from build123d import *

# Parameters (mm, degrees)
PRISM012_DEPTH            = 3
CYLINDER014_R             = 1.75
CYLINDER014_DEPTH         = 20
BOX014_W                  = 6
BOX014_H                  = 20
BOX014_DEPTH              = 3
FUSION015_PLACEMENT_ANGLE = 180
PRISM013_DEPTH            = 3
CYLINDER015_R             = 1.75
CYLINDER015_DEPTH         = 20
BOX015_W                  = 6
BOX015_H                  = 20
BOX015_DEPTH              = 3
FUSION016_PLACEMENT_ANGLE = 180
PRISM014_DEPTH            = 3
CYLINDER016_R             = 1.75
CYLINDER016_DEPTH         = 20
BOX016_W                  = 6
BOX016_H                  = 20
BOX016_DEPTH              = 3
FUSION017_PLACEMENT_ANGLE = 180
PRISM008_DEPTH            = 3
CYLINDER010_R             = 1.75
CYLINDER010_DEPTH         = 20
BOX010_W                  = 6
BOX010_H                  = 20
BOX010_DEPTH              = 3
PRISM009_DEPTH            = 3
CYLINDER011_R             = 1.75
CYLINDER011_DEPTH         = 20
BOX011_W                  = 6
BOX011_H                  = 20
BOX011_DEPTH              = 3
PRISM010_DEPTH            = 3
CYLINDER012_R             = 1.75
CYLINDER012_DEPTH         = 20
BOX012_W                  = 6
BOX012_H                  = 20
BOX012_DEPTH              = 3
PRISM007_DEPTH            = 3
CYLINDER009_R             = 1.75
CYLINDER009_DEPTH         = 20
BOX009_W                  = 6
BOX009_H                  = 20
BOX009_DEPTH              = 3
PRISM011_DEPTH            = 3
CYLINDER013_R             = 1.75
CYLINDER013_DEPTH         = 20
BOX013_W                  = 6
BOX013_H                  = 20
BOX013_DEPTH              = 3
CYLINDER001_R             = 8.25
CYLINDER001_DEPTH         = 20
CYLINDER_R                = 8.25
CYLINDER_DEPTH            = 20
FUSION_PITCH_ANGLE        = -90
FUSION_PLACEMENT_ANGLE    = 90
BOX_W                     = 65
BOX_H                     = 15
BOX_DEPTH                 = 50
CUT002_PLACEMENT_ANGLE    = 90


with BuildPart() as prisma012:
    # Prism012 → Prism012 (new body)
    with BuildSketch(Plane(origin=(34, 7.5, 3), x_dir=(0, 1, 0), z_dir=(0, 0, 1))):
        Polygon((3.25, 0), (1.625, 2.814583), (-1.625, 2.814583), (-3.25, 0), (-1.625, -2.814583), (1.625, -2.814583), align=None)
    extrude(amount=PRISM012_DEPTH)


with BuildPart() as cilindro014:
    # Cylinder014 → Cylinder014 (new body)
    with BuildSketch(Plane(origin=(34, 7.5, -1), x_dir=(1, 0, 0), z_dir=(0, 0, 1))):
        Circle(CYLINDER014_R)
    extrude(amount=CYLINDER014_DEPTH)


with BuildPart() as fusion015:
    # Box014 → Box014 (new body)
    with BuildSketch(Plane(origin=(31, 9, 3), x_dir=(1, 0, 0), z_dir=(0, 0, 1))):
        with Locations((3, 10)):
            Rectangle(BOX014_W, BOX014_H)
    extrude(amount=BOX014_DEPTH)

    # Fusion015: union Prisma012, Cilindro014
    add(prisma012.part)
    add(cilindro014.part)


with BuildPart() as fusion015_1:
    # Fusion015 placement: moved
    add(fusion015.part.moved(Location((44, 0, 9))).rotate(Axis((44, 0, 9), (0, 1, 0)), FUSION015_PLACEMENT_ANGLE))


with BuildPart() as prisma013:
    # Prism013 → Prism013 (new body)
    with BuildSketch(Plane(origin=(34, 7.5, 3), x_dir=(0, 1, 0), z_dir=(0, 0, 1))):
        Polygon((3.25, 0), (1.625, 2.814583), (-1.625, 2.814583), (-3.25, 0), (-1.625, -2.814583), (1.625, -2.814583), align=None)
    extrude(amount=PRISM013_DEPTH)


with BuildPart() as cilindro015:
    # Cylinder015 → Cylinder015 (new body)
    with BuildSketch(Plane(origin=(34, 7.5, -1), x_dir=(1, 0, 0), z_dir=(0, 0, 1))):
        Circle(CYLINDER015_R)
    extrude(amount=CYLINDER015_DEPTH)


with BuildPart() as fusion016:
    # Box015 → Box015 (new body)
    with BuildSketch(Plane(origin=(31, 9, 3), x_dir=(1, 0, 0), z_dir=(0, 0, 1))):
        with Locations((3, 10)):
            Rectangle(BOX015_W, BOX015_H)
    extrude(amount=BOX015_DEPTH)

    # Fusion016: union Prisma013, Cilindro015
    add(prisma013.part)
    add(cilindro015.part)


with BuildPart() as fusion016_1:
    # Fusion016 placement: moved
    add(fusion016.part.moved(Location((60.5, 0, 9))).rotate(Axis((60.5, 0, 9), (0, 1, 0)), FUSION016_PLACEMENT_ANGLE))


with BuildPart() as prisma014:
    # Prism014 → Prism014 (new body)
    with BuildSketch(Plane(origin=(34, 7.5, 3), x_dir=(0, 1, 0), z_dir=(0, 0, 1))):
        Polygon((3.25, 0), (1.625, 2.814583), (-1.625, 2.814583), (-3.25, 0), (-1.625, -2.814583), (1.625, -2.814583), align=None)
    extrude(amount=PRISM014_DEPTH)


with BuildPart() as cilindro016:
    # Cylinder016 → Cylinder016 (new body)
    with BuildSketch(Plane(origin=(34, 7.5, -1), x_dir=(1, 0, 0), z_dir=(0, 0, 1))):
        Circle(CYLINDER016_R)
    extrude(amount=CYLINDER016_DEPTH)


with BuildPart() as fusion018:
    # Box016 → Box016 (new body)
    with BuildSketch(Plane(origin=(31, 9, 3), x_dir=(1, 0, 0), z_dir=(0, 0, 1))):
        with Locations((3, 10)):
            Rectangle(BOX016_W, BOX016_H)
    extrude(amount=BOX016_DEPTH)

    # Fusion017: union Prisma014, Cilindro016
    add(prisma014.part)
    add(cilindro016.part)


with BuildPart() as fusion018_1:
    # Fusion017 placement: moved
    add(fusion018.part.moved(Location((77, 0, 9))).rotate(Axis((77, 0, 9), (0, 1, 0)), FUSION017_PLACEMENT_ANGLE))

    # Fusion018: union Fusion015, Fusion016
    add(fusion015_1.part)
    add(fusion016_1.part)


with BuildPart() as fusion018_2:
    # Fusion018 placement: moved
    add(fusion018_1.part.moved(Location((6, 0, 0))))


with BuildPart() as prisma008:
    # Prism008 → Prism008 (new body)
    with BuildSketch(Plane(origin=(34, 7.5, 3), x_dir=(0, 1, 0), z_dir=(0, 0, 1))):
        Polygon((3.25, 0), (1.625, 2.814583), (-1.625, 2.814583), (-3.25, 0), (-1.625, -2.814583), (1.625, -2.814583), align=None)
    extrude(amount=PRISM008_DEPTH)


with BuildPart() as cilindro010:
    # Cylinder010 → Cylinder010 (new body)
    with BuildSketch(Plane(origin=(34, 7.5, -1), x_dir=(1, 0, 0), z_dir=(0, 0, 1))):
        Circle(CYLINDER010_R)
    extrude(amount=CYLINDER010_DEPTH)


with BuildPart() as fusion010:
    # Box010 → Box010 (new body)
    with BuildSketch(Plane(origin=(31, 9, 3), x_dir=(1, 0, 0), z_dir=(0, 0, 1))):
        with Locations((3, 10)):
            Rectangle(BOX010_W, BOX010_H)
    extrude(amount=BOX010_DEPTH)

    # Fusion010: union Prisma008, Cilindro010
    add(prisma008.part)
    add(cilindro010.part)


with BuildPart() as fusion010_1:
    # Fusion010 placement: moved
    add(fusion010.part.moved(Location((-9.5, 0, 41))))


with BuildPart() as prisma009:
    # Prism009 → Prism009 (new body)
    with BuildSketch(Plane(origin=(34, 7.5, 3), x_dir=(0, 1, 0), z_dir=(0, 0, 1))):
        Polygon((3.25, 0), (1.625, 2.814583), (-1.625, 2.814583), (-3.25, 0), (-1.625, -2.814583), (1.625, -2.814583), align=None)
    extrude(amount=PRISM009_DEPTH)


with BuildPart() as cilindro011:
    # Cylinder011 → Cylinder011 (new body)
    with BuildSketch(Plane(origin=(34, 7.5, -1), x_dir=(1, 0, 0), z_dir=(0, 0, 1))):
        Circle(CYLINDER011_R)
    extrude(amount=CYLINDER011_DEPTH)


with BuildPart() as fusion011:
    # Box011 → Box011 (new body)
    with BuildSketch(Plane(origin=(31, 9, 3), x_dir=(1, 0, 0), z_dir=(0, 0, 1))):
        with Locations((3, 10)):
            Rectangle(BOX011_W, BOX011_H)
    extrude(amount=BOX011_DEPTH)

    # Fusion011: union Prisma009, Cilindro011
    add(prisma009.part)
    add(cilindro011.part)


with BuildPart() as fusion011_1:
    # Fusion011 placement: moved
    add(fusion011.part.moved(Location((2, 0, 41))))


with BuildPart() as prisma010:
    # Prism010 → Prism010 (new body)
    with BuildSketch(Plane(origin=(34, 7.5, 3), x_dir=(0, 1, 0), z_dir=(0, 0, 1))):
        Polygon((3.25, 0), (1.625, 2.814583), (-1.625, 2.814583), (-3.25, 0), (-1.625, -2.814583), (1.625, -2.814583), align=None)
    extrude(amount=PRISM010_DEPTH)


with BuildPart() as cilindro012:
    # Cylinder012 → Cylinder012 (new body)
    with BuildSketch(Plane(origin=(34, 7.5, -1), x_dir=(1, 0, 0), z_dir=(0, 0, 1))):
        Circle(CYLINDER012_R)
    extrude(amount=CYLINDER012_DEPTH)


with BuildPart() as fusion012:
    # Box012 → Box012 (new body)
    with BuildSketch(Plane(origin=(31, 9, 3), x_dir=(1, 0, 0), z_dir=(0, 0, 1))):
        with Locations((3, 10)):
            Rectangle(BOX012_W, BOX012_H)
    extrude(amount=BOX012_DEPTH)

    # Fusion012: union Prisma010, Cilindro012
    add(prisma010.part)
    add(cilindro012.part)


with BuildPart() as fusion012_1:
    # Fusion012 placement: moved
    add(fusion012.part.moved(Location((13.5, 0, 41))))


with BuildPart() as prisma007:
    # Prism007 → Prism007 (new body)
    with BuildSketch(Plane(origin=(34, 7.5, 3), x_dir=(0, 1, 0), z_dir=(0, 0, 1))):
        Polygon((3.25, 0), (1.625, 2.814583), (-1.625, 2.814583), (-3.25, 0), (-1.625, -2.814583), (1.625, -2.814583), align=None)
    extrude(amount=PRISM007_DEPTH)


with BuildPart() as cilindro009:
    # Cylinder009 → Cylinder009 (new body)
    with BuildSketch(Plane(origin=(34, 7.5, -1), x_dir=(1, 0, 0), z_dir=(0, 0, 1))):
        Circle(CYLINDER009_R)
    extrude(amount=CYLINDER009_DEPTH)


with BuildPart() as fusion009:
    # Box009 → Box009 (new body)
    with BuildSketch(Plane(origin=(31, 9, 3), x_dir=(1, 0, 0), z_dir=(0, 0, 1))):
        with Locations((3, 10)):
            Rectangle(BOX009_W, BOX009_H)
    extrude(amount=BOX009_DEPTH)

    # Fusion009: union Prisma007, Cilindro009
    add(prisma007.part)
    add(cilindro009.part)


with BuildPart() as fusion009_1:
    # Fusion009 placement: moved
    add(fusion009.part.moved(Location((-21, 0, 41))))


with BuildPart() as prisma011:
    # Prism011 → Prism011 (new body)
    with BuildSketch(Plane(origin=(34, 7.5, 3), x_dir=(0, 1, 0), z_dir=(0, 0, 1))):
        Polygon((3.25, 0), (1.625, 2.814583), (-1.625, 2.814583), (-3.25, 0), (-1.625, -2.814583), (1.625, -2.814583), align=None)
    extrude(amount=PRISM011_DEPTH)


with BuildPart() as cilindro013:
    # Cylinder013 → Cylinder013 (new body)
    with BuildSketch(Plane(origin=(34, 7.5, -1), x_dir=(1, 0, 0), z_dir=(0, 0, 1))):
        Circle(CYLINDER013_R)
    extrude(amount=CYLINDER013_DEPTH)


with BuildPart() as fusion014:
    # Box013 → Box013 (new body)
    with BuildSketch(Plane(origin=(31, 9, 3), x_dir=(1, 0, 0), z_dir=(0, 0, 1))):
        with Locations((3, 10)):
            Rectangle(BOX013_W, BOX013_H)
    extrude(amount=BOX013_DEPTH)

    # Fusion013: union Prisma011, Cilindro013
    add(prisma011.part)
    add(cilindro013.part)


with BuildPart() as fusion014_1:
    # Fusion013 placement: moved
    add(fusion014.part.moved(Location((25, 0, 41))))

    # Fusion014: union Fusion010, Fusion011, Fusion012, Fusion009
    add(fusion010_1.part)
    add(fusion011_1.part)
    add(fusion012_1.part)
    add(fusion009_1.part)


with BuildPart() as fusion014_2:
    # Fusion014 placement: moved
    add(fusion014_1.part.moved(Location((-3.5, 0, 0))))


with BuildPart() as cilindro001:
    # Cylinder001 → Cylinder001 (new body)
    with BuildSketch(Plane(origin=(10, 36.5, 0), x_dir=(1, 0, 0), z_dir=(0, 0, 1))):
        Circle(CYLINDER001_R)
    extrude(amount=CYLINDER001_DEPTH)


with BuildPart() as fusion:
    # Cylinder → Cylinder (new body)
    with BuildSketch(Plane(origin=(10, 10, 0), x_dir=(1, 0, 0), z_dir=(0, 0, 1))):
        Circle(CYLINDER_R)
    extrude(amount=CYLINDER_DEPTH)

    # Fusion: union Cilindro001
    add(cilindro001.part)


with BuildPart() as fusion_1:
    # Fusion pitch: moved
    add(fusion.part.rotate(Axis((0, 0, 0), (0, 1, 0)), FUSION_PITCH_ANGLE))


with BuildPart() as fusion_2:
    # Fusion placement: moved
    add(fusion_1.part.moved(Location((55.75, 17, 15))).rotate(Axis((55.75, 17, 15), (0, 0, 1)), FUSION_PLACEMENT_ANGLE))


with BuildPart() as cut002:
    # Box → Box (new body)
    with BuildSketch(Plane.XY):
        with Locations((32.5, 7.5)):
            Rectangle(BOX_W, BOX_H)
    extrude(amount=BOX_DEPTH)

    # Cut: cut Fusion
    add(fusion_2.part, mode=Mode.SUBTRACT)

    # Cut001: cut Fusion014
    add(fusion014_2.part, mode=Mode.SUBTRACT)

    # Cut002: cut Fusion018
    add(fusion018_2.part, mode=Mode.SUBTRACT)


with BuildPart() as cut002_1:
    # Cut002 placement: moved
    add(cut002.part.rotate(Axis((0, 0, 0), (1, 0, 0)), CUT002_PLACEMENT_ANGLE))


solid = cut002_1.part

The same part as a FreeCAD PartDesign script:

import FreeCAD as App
import Part
import Sketcher

V = App.Vector
Q = App.Units.Quantity


def add_polygon(sketch, points):
    """Adds a closed chain of lines whose ends are joined by coincident constraints."""
    first, n = sketch.GeometryCount, len(points)
    for a, b in zip(points, points[1:] + points[:1]):
        sketch.addGeometry(Part.LineSegment(App.Vector(*a, 0), App.Vector(*b, 0)), False)
    for i in range(n):
        sketch.addConstraint(Sketcher.Constraint("Coincident", first + i, 2, first + (i + 1) % n, 1))

doc = App.newDocument("Part")
body = doc.addObject("PartDesign::Body", "Body")

sketch1 = body.newObject("Sketcher::SketchObject", "Sketch")
sketch1.AttachmentSupport = (doc.getObject("XY_Plane"), [""])
sketch1.MapMode = "FlatFace"
sketch1.AttachmentOffset = App.Placement(V(0, 0, 3), App.Rotation())
add_polygon(sketch1, [(34, 10.8), (31.2, 9.1), (31.2, 5.9), (34, 4.2), (36.8, 5.9), (36.8, 9.1)])
sketch1.addConstraint(Sketcher.Constraint("Vertical", 1))
sketch1.addConstraint(Sketcher.Constraint("Vertical", 4))
sketch1.addConstraint(Sketcher.Constraint("Parallel", 0, 3))
sketch1.addConstraint(Sketcher.Constraint("Parallel", 2, 5))
sketch1.addConstraint(Sketcher.Constraint("Horizontal", 1, 2, 3, 2))
sketch1.addConstraint(Sketcher.Constraint("Horizontal", 0, 2, 4, 2))
sketch1.addConstraint(Sketcher.Constraint("Vertical", 2, 2, 5, 2))
sketch1.addConstraint(Sketcher.Constraint("Angle", 0, Q("-150.000004 deg")))
sketch1.addConstraint(Sketcher.Constraint("DistanceX", -1, 1, 2, 2, Q("34 mm")))
sketch1.addConstraint(Sketcher.Constraint("DistanceY", 1, 2, 1, 1, Q("3.25 mm")))
sketch1.addConstraint(Sketcher.Constraint("DistanceY", 2, 2, 5, 2, Q("6.5 mm")))
sketch1.addConstraint(Sketcher.Constraint("DistanceY", -1, 1, 2, 2, Q("4.25 mm")))
pad1 = body.newObject("PartDesign::Pad", "Pad")
pad1.Profile = sketch1
pad1.Length = 3
body2 = doc.addObject("PartDesign::Body", "Body001")

sketch2 = body2.newObject("Sketcher::SketchObject", "Sketch001")
sketch2.AttachmentSupport = (doc.getObject("XY_Plane001"), [""])
sketch2.MapMode = "FlatFace"
sketch2.AttachmentOffset = App.Placement(V(0, 0, -1), App.Rotation())
sketch2.addGeometry(Part.Circle(V(34, 7.5, 0), V(0, 0, 1), 1.8), False)
sketch2.addConstraint(Sketcher.Constraint("Diameter", 0, Q("3.5 mm")))
sketch2.addConstraint(Sketcher.Constraint("DistanceX", -1, 1, 0, 3, Q("34 mm")))
sketch2.addConstraint(Sketcher.Constraint("DistanceY", -1, 1, 0, 3, Q("7.5 mm")))
pad2 = body2.newObject("PartDesign::Pad", "Pad001")
pad2.Profile = sketch2
pad2.Length = 20
body3 = doc.addObject("PartDesign::Body", "Body002")

sketch3 = body3.newObject("Sketcher::SketchObject", "Sketch002")
sketch3.AttachmentSupport = (doc.getObject("XY_Plane002"), [""])
sketch3.MapMode = "FlatFace"
sketch3.AttachmentOffset = App.Placement(V(0, 0, 3), App.Rotation())
add_polygon(sketch3, [(31, 29), (31, 9), (37, 9), (37, 29)])
sketch3.addConstraint(Sketcher.Constraint("Vertical", 0))
sketch3.addConstraint(Sketcher.Constraint("Horizontal", 1))
sketch3.addConstraint(Sketcher.Constraint("Vertical", 2))
sketch3.addConstraint(Sketcher.Constraint("Horizontal", 3))
sketch3.addConstraint(Sketcher.Constraint("DistanceX", 1, 1, 1, 2, Q("6 mm")))
sketch3.addConstraint(Sketcher.Constraint("DistanceY", 0, 2, 0, 1, Q("20 mm")))
sketch3.addConstraint(Sketcher.Constraint("DistanceX", -1, 1, 0, 2, Q("31 mm")))
sketch3.addConstraint(Sketcher.Constraint("DistanceY", -1, 1, 0, 2, Q("9 mm")))
pad3 = body3.newObject("PartDesign::Pad", "Pad002")
pad3.Profile = sketch3
pad3.Length = 3
doc.recompute()

boolean = body3.newObject("PartDesign::Boolean", "Boolean")
boolean.Type = "Fuse"
boolean.addObjects([body])
doc.recompute()

boolean2 = body3.newObject("PartDesign::Boolean", "Boolean001")
boolean2.Type = "Fuse"
boolean2.addObjects([body2])
body4 = doc.addObject("PartDesign::Body", "Body003")
doc.recompute()

body3.Placement = App.Placement(V(44, 0, 9), App.Rotation(V(0, 1, 0), 180))
boolean3 = body4.newObject("PartDesign::Boolean", "Boolean002")
boolean3.Type = "Fuse"
boolean3.addObjects([body3])
body5 = doc.addObject("PartDesign::Body", "Body004")

sketch4 = body5.newObject("Sketcher::SketchObject", "Sketch003")
sketch4.AttachmentSupport = (doc.getObject("XY_Plane004"), [""])
sketch4.MapMode = "FlatFace"
sketch4.AttachmentOffset = App.Placement(V(0, 0, 3), App.Rotation())
add_polygon(sketch4, [(34, 10.8), (31.2, 9.1), (31.2, 5.9), (34, 4.2), (36.8, 5.9), (36.8, 9.1)])
sketch4.addConstraint(Sketcher.Constraint("Vertical", 1))
sketch4.addConstraint(Sketcher.Constraint("Vertical", 4))
sketch4.addConstraint(Sketcher.Constraint("Parallel", 0, 3))
sketch4.addConstraint(Sketcher.Constraint("Parallel", 2, 5))
sketch4.addConstraint(Sketcher.Constraint("Horizontal", 1, 2, 3, 2))
sketch4.addConstraint(Sketcher.Constraint("Horizontal", 0, 2, 4, 2))
sketch4.addConstraint(Sketcher.Constraint("Vertical", 2, 2, 5, 2))
sketch4.addConstraint(Sketcher.Constraint("Angle", 0, Q("-150.000004 deg")))
sketch4.addConstraint(Sketcher.Constraint("DistanceX", -1, 1, 2, 2, Q("34 mm")))
sketch4.addConstraint(Sketcher.Constraint("DistanceY", 1, 2, 1, 1, Q("3.25 mm")))
sketch4.addConstraint(Sketcher.Constraint("DistanceY", 2, 2, 5, 2, Q("6.5 mm")))
sketch4.addConstraint(Sketcher.Constraint("DistanceY", -1, 1, 2, 2, Q("4.25 mm")))
pad4 = body5.newObject("PartDesign::Pad", "Pad003")
pad4.Profile = sketch4
pad4.Length = 3
body6 = doc.addObject("PartDesign::Body", "Body005")

sketch5 = body6.newObject("Sketcher::SketchObject", "Sketch004")
sketch5.AttachmentSupport = (doc.getObject("XY_Plane005"), [""])
sketch5.MapMode = "FlatFace"
sketch5.AttachmentOffset = App.Placement(V(0, 0, -1), App.Rotation())
sketch5.addGeometry(Part.Circle(V(34, 7.5, 0), V(0, 0, 1), 1.8), False)
sketch5.addConstraint(Sketcher.Constraint("Diameter", 0, Q("3.5 mm")))
sketch5.addConstraint(Sketcher.Constraint("DistanceX", -1, 1, 0, 3, Q("34 mm")))
sketch5.addConstraint(Sketcher.Constraint("DistanceY", -1, 1, 0, 3, Q("7.5 mm")))
pad5 = body6.newObject("PartDesign::Pad", "Pad004")
pad5.Profile = sketch5
pad5.Length = 20
body7 = doc.addObject("PartDesign::Body", "Body006")

sketch6 = body7.newObject("Sketcher::SketchObject", "Sketch005")
sketch6.AttachmentSupport = (doc.getObject("XY_Plane006"), [""])
sketch6.MapMode = "FlatFace"
sketch6.AttachmentOffset = App.Placement(V(0, 0, 3), App.Rotation())
add_polygon(sketch6, [(31, 29), (31, 9), (37, 9), (37, 29)])
sketch6.addConstraint(Sketcher.Constraint("Vertical", 0))
sketch6.addConstraint(Sketcher.Constraint("Horizontal", 1))
sketch6.addConstraint(Sketcher.Constraint("Vertical", 2))
sketch6.addConstraint(Sketcher.Constraint("Horizontal", 3))
sketch6.addConstraint(Sketcher.Constraint("DistanceX", 1, 1, 1, 2, Q("6 mm")))
sketch6.addConstraint(Sketcher.Constraint("DistanceY", 0, 2, 0, 1, Q("20 mm")))
sketch6.addConstraint(Sketcher.Constraint("DistanceX", -1, 1, 0, 2, Q("31 mm")))
sketch6.addConstraint(Sketcher.Constraint("DistanceY", -1, 1, 0, 2, Q("9 mm")))
pad6 = body7.newObject("PartDesign::Pad", "Pad005")
pad6.Profile = sketch6
pad6.Length = 3
doc.recompute()

boolean4 = body7.newObject("PartDesign::Boolean", "Boolean003")
boolean4.Type = "Fuse"
boolean4.addObjects([body5])
doc.recompute()

boolean5 = body7.newObject("PartDesign::Boolean", "Boolean004")
boolean5.Type = "Fuse"
boolean5.addObjects([body6])
body8 = doc.addObject("PartDesign::Body", "Body007")
doc.recompute()

body7.Placement = App.Placement(V(60.5, 0, 9), App.Rotation(V(0, 1, 0), 180))
boolean6 = body8.newObject("PartDesign::Boolean", "Boolean005")
boolean6.Type = "Fuse"
boolean6.addObjects([body7])
body9 = doc.addObject("PartDesign::Body", "Body008")

sketch7 = body9.newObject("Sketcher::SketchObject", "Sketch006")
sketch7.AttachmentSupport = (doc.getObject("XY_Plane008"), [""])
sketch7.MapMode = "FlatFace"
sketch7.AttachmentOffset = App.Placement(V(0, 0, 3), App.Rotation())
add_polygon(sketch7, [(34, 10.8), (31.2, 9.1), (31.2, 5.9), (34, 4.2), (36.8, 5.9), (36.8, 9.1)])
sketch7.addConstraint(Sketcher.Constraint("Vertical", 1))
sketch7.addConstraint(Sketcher.Constraint("Vertical", 4))
sketch7.addConstraint(Sketcher.Constraint("Parallel", 0, 3))
sketch7.addConstraint(Sketcher.Constraint("Parallel", 2, 5))
sketch7.addConstraint(Sketcher.Constraint("Horizontal", 1, 2, 3, 2))
sketch7.addConstraint(Sketcher.Constraint("Horizontal", 0, 2, 4, 2))
sketch7.addConstraint(Sketcher.Constraint("Vertical", 2, 2, 5, 2))
sketch7.addConstraint(Sketcher.Constraint("Angle", 0, Q("-150.000004 deg")))
sketch7.addConstraint(Sketcher.Constraint("DistanceX", -1, 1, 2, 2, Q("34 mm")))
sketch7.addConstraint(Sketcher.Constraint("DistanceY", 1, 2, 1, 1, Q("3.25 mm")))
sketch7.addConstraint(Sketcher.Constraint("DistanceY", 2, 2, 5, 2, Q("6.5 mm")))
sketch7.addConstraint(Sketcher.Constraint("DistanceY", -1, 1, 2, 2, Q("4.25 mm")))
pad7 = body9.newObject("PartDesign::Pad", "Pad006")
pad7.Profile = sketch7
pad7.Length = 3
body10 = doc.addObject("PartDesign::Body", "Body009")

sketch8 = body10.newObject("Sketcher::SketchObject", "Sketch007")
sketch8.AttachmentSupport = (doc.getObject("XY_Plane009"), [""])
sketch8.MapMode = "FlatFace"
sketch8.AttachmentOffset = App.Placement(V(0, 0, -1), App.Rotation())
sketch8.addGeometry(Part.Circle(V(34, 7.5, 0), V(0, 0, 1), 1.8), False)
sketch8.addConstraint(Sketcher.Constraint("Diameter", 0, Q("3.5 mm")))
sketch8.addConstraint(Sketcher.Constraint("DistanceX", -1, 1, 0, 3, Q("34 mm")))
sketch8.addConstraint(Sketcher.Constraint("DistanceY", -1, 1, 0, 3, Q("7.5 mm")))
pad8 = body10.newObject("PartDesign::Pad", "Pad007")
pad8.Profile = sketch8
pad8.Length = 20
body11 = doc.addObject("PartDesign::Body", "Body010")

sketch9 = body11.newObject("Sketcher::SketchObject", "Sketch008")
sketch9.AttachmentSupport = (doc.getObject("XY_Plane010"), [""])
sketch9.MapMode = "FlatFace"
sketch9.AttachmentOffset = App.Placement(V(0, 0, 3), App.Rotation())
add_polygon(sketch9, [(31, 29), (31, 9), (37, 9), (37, 29)])
sketch9.addConstraint(Sketcher.Constraint("Vertical", 0))
sketch9.addConstraint(Sketcher.Constraint("Horizontal", 1))
sketch9.addConstraint(Sketcher.Constraint("Vertical", 2))
sketch9.addConstraint(Sketcher.Constraint("Horizontal", 3))
sketch9.addConstraint(Sketcher.Constraint("DistanceX", 1, 1, 1, 2, Q("6 mm")))
sketch9.addConstraint(Sketcher.Constraint("DistanceY", 0, 2, 0, 1, Q("20 mm")))
sketch9.addConstraint(Sketcher.Constraint("DistanceX", -1, 1, 0, 2, Q("31 mm")))
sketch9.addConstraint(Sketcher.Constraint("DistanceY", -1, 1, 0, 2, Q("9 mm")))
pad9 = body11.newObject("PartDesign::Pad", "Pad008")
pad9.Profile = sketch9
pad9.Length = 3
doc.recompute()

boolean7 = body11.newObject("PartDesign::Boolean", "Boolean006")
boolean7.Type = "Fuse"
boolean7.addObjects([body9])
doc.recompute()

boolean8 = body11.newObject("PartDesign::Boolean", "Boolean007")
boolean8.Type = "Fuse"
boolean8.addObjects([body10])
body12 = doc.addObject("PartDesign::Body", "Body011")
body12.AllowCompound = True
doc.recompute()

body11.Placement = App.Placement(V(77, 0, 9), App.Rotation(V(0, 1, 0), 180))
boolean9 = body12.newObject("PartDesign::Boolean", "Boolean008")
boolean9.Type = "Fuse"
boolean9.addObjects([body11])
doc.recompute()

boolean10 = body12.newObject("PartDesign::Boolean", "Boolean009")
boolean10.Type = "Fuse"
boolean10.addObjects([body4])
doc.recompute()

boolean11 = body12.newObject("PartDesign::Boolean", "Boolean010")
boolean11.Type = "Fuse"
boolean11.addObjects([body8])
body13 = doc.addObject("PartDesign::Body", "Body012")
body13.AllowCompound = True
doc.recompute()

body12.Placement = App.Placement(V(6, 0, 0), App.Rotation(V(0, 0, 1), 0))
boolean12 = body13.newObject("PartDesign::Boolean", "Boolean011")
boolean12.Type = "Fuse"
boolean12.addObjects([body12])
body14 = doc.addObject("PartDesign::Body", "Body013")

sketch10 = body14.newObject("Sketcher::SketchObject", "Sketch009")
sketch10.AttachmentSupport = (doc.getObject("XY_Plane013"), [""])
sketch10.MapMode = "FlatFace"
sketch10.AttachmentOffset = App.Placement(V(0, 0, 3), App.Rotation())
add_polygon(sketch10, [(34, 10.8), (31.2, 9.1), (31.2, 5.9), (34, 4.2), (36.8, 5.9), (36.8, 9.1)])
sketch10.addConstraint(Sketcher.Constraint("Vertical", 1))
sketch10.addConstraint(Sketcher.Constraint("Vertical", 4))
sketch10.addConstraint(Sketcher.Constraint("Parallel", 0, 3))
sketch10.addConstraint(Sketcher.Constraint("Parallel", 2, 5))
sketch10.addConstraint(Sketcher.Constraint("Horizontal", 1, 2, 3, 2))
sketch10.addConstraint(Sketcher.Constraint("Horizontal", 0, 2, 4, 2))
sketch10.addConstraint(Sketcher.Constraint("Vertical", 2, 2, 5, 2))
sketch10.addConstraint(Sketcher.Constraint("Angle", 0, Q("-150.000004 deg")))
sketch10.addConstraint(Sketcher.Constraint("DistanceX", -1, 1, 2, 2, Q("34 mm")))
sketch10.addConstraint(Sketcher.Constraint("DistanceY", 1, 2, 1, 1, Q("3.25 mm")))
sketch10.addConstraint(Sketcher.Constraint("DistanceY", 2, 2, 5, 2, Q("6.5 mm")))
sketch10.addConstraint(Sketcher.Constraint("DistanceY", -1, 1, 2, 2, Q("4.25 mm")))
pad10 = body14.newObject("PartDesign::Pad", "Pad009")
pad10.Profile = sketch10
pad10.Length = 3
body15 = doc.addObject("PartDesign::Body", "Body014")

sketch11 = body15.newObject("Sketcher::SketchObject", "Sketch010")
sketch11.AttachmentSupport = (doc.getObject("XY_Plane014"), [""])
sketch11.MapMode = "FlatFace"
sketch11.AttachmentOffset = App.Placement(V(0, 0, -1), App.Rotation())
sketch11.addGeometry(Part.Circle(V(34, 7.5, 0), V(0, 0, 1), 1.8), False)
sketch11.addConstraint(Sketcher.Constraint("Diameter", 0, Q("3.5 mm")))
sketch11.addConstraint(Sketcher.Constraint("DistanceX", -1, 1, 0, 3, Q("34 mm")))
sketch11.addConstraint(Sketcher.Constraint("DistanceY", -1, 1, 0, 3, Q("7.5 mm")))
pad11 = body15.newObject("PartDesign::Pad", "Pad010")
pad11.Profile = sketch11
pad11.Length = 20
body16 = doc.addObject("PartDesign::Body", "Body015")

sketch12 = body16.newObject("Sketcher::SketchObject", "Sketch011")
sketch12.AttachmentSupport = (doc.getObject("XY_Plane015"), [""])
sketch12.MapMode = "FlatFace"
sketch12.AttachmentOffset = App.Placement(V(0, 0, 3), App.Rotation())
add_polygon(sketch12, [(31, 29), (31, 9), (37, 9), (37, 29)])
sketch12.addConstraint(Sketcher.Constraint("Vertical", 0))
sketch12.addConstraint(Sketcher.Constraint("Horizontal", 1))
sketch12.addConstraint(Sketcher.Constraint("Vertical", 2))
sketch12.addConstraint(Sketcher.Constraint("Horizontal", 3))
sketch12.addConstraint(Sketcher.Constraint("DistanceX", 1, 1, 1, 2, Q("6 mm")))
sketch12.addConstraint(Sketcher.Constraint("DistanceY", 0, 2, 0, 1, Q("20 mm")))
sketch12.addConstraint(Sketcher.Constraint("DistanceX", -1, 1, 0, 2, Q("31 mm")))
sketch12.addConstraint(Sketcher.Constraint("DistanceY", -1, 1, 0, 2, Q("9 mm")))
pad12 = body16.newObject("PartDesign::Pad", "Pad011")
pad12.Profile = sketch12
pad12.Length = 3
doc.recompute()

boolean13 = body16.newObject("PartDesign::Boolean", "Boolean012")
boolean13.Type = "Fuse"
boolean13.addObjects([body14])
doc.recompute()

boolean14 = body16.newObject("PartDesign::Boolean", "Boolean013")
boolean14.Type = "Fuse"
boolean14.addObjects([body15])
body17 = doc.addObject("PartDesign::Body", "Body016")
doc.recompute()

body16.Placement = App.Placement(V(-9.5, 0, 41), App.Rotation(V(0, 0, 1), 0))
boolean15 = body17.newObject("PartDesign::Boolean", "Boolean014")
boolean15.Type = "Fuse"
boolean15.addObjects([body16])
body18 = doc.addObject("PartDesign::Body", "Body017")

sketch13 = body18.newObject("Sketcher::SketchObject", "Sketch012")
sketch13.AttachmentSupport = (doc.getObject("XY_Plane017"), [""])
sketch13.MapMode = "FlatFace"
sketch13.AttachmentOffset = App.Placement(V(0, 0, 3), App.Rotation())
add_polygon(sketch13, [(34, 10.8), (31.2, 9.1), (31.2, 5.9), (34, 4.2), (36.8, 5.9), (36.8, 9.1)])
sketch13.addConstraint(Sketcher.Constraint("Vertical", 1))
sketch13.addConstraint(Sketcher.Constraint("Vertical", 4))
sketch13.addConstraint(Sketcher.Constraint("Parallel", 0, 3))
sketch13.addConstraint(Sketcher.Constraint("Parallel", 2, 5))
sketch13.addConstraint(Sketcher.Constraint("Horizontal", 1, 2, 3, 2))
sketch13.addConstraint(Sketcher.Constraint("Horizontal", 0, 2, 4, 2))
sketch13.addConstraint(Sketcher.Constraint("Vertical", 2, 2, 5, 2))
sketch13.addConstraint(Sketcher.Constraint("Angle", 0, Q("-150.000004 deg")))
sketch13.addConstraint(Sketcher.Constraint("DistanceX", -1, 1, 2, 2, Q("34 mm")))
sketch13.addConstraint(Sketcher.Constraint("DistanceY", 1, 2, 1, 1, Q("3.25 mm")))
sketch13.addConstraint(Sketcher.Constraint("DistanceY", 2, 2, 5, 2, Q("6.5 mm")))
sketch13.addConstraint(Sketcher.Constraint("DistanceY", -1, 1, 2, 2, Q("4.25 mm")))
pad13 = body18.newObject("PartDesign::Pad", "Pad012")
pad13.Profile = sketch13
pad13.Length = 3
body19 = doc.addObject("PartDesign::Body", "Body018")

sketch14 = body19.newObject("Sketcher::SketchObject", "Sketch013")
sketch14.AttachmentSupport = (doc.getObject("XY_Plane018"), [""])
sketch14.MapMode = "FlatFace"
sketch14.AttachmentOffset = App.Placement(V(0, 0, -1), App.Rotation())
sketch14.addGeometry(Part.Circle(V(34, 7.5, 0), V(0, 0, 1), 1.8), False)
sketch14.addConstraint(Sketcher.Constraint("Diameter", 0, Q("3.5 mm")))
sketch14.addConstraint(Sketcher.Constraint("DistanceX", -1, 1, 0, 3, Q("34 mm")))
sketch14.addConstraint(Sketcher.Constraint("DistanceY", -1, 1, 0, 3, Q("7.5 mm")))
pad14 = body19.newObject("PartDesign::Pad", "Pad013")
pad14.Profile = sketch14
pad14.Length = 20
body20 = doc.addObject("PartDesign::Body", "Body019")

sketch15 = body20.newObject("Sketcher::SketchObject", "Sketch014")
sketch15.AttachmentSupport = (doc.getObject("XY_Plane019"), [""])
sketch15.MapMode = "FlatFace"
sketch15.AttachmentOffset = App.Placement(V(0, 0, 3), App.Rotation())
add_polygon(sketch15, [(31, 29), (31, 9), (37, 9), (37, 29)])
sketch15.addConstraint(Sketcher.Constraint("Vertical", 0))
sketch15.addConstraint(Sketcher.Constraint("Horizontal", 1))
sketch15.addConstraint(Sketcher.Constraint("Vertical", 2))
sketch15.addConstraint(Sketcher.Constraint("Horizontal", 3))
sketch15.addConstraint(Sketcher.Constraint("DistanceX", 1, 1, 1, 2, Q("6 mm")))
sketch15.addConstraint(Sketcher.Constraint("DistanceY", 0, 2, 0, 1, Q("20 mm")))
sketch15.addConstraint(Sketcher.Constraint("DistanceX", -1, 1, 0, 2, Q("31 mm")))
sketch15.addConstraint(Sketcher.Constraint("DistanceY", -1, 1, 0, 2, Q("9 mm")))
pad15 = body20.newObject("PartDesign::Pad", "Pad014")
pad15.Profile = sketch15
pad15.Length = 3
doc.recompute()

boolean16 = body20.newObject("PartDesign::Boolean", "Boolean015")
boolean16.Type = "Fuse"
boolean16.addObjects([body18])
doc.recompute()

boolean17 = body20.newObject("PartDesign::Boolean", "Boolean016")
boolean17.Type = "Fuse"
boolean17.addObjects([body19])
body21 = doc.addObject("PartDesign::Body", "Body020")
doc.recompute()

body20.Placement = App.Placement(V(2, 0, 41), App.Rotation(V(0, 0, 1), 0))
boolean18 = body21.newObject("PartDesign::Boolean", "Boolean017")
boolean18.Type = "Fuse"
boolean18.addObjects([body20])
body22 = doc.addObject("PartDesign::Body", "Body021")

sketch16 = body22.newObject("Sketcher::SketchObject", "Sketch015")
sketch16.AttachmentSupport = (doc.getObject("XY_Plane021"), [""])
sketch16.MapMode = "FlatFace"
sketch16.AttachmentOffset = App.Placement(V(0, 0, 3), App.Rotation())
add_polygon(sketch16, [(34, 10.8), (31.2, 9.1), (31.2, 5.9), (34, 4.2), (36.8, 5.9), (36.8, 9.1)])
sketch16.addConstraint(Sketcher.Constraint("Vertical", 1))
sketch16.addConstraint(Sketcher.Constraint("Vertical", 4))
sketch16.addConstraint(Sketcher.Constraint("Parallel", 0, 3))
sketch16.addConstraint(Sketcher.Constraint("Parallel", 2, 5))
sketch16.addConstraint(Sketcher.Constraint("Horizontal", 1, 2, 3, 2))
sketch16.addConstraint(Sketcher.Constraint("Horizontal", 0, 2, 4, 2))
sketch16.addConstraint(Sketcher.Constraint("Vertical", 2, 2, 5, 2))
sketch16.addConstraint(Sketcher.Constraint("Angle", 0, Q("-150.000004 deg")))
sketch16.addConstraint(Sketcher.Constraint("DistanceX", -1, 1, 2, 2, Q("34 mm")))
sketch16.addConstraint(Sketcher.Constraint("DistanceY", 1, 2, 1, 1, Q("3.25 mm")))
sketch16.addConstraint(Sketcher.Constraint("DistanceY", 2, 2, 5, 2, Q("6.5 mm")))
sketch16.addConstraint(Sketcher.Constraint("DistanceY", -1, 1, 2, 2, Q("4.25 mm")))
pad16 = body22.newObject("PartDesign::Pad", "Pad015")
pad16.Profile = sketch16
pad16.Length = 3
body23 = doc.addObject("PartDesign::Body", "Body022")

sketch17 = body23.newObject("Sketcher::SketchObject", "Sketch016")
sketch17.AttachmentSupport = (doc.getObject("XY_Plane022"), [""])
sketch17.MapMode = "FlatFace"
sketch17.AttachmentOffset = App.Placement(V(0, 0, -1), App.Rotation())
sketch17.addGeometry(Part.Circle(V(34, 7.5, 0), V(0, 0, 1), 1.8), False)
sketch17.addConstraint(Sketcher.Constraint("Diameter", 0, Q("3.5 mm")))
sketch17.addConstraint(Sketcher.Constraint("DistanceX", -1, 1, 0, 3, Q("34 mm")))
sketch17.addConstraint(Sketcher.Constraint("DistanceY", -1, 1, 0, 3, Q("7.5 mm")))
pad17 = body23.newObject("PartDesign::Pad", "Pad016")
pad17.Profile = sketch17
pad17.Length = 20
body24 = doc.addObject("PartDesign::Body", "Body023")

sketch18 = body24.newObject("Sketcher::SketchObject", "Sketch017")
sketch18.AttachmentSupport = (doc.getObject("XY_Plane023"), [""])
sketch18.MapMode = "FlatFace"
sketch18.AttachmentOffset = App.Placement(V(0, 0, 3), App.Rotation())
add_polygon(sketch18, [(31, 29), (31, 9), (37, 9), (37, 29)])
sketch18.addConstraint(Sketcher.Constraint("Vertical", 0))
sketch18.addConstraint(Sketcher.Constraint("Horizontal", 1))
sketch18.addConstraint(Sketcher.Constraint("Vertical", 2))
sketch18.addConstraint(Sketcher.Constraint("Horizontal", 3))
sketch18.addConstraint(Sketcher.Constraint("DistanceX", 1, 1, 1, 2, Q("6 mm")))
sketch18.addConstraint(Sketcher.Constraint("DistanceY", 0, 2, 0, 1, Q("20 mm")))
sketch18.addConstraint(Sketcher.Constraint("DistanceX", -1, 1, 0, 2, Q("31 mm")))
sketch18.addConstraint(Sketcher.Constraint("DistanceY", -1, 1, 0, 2, Q("9 mm")))
pad18 = body24.newObject("PartDesign::Pad", "Pad017")
pad18.Profile = sketch18
pad18.Length = 3
doc.recompute()

boolean19 = body24.newObject("PartDesign::Boolean", "Boolean018")
boolean19.Type = "Fuse"
boolean19.addObjects([body22])
doc.recompute()

boolean20 = body24.newObject("PartDesign::Boolean", "Boolean019")
boolean20.Type = "Fuse"
boolean20.addObjects([body23])
body25 = doc.addObject("PartDesign::Body", "Body024")
doc.recompute()

body24.Placement = App.Placement(V(13.5, 0, 41), App.Rotation(V(0, 0, 1), 0))
boolean21 = body25.newObject("PartDesign::Boolean", "Boolean020")
boolean21.Type = "Fuse"
boolean21.addObjects([body24])
body26 = doc.addObject("PartDesign::Body", "Body025")

sketch19 = body26.newObject("Sketcher::SketchObject", "Sketch018")
sketch19.AttachmentSupport = (doc.getObject("XY_Plane025"), [""])
sketch19.MapMode = "FlatFace"
sketch19.AttachmentOffset = App.Placement(V(0, 0, 3), App.Rotation())
add_polygon(sketch19, [(34, 10.8), (31.2, 9.1), (31.2, 5.9), (34, 4.2), (36.8, 5.9), (36.8, 9.1)])
sketch19.addConstraint(Sketcher.Constraint("Vertical", 1))
sketch19.addConstraint(Sketcher.Constraint("Vertical", 4))
sketch19.addConstraint(Sketcher.Constraint("Parallel", 0, 3))
sketch19.addConstraint(Sketcher.Constraint("Parallel", 2, 5))
sketch19.addConstraint(Sketcher.Constraint("Horizontal", 1, 2, 3, 2))
sketch19.addConstraint(Sketcher.Constraint("Horizontal", 0, 2, 4, 2))
sketch19.addConstraint(Sketcher.Constraint("Vertical", 2, 2, 5, 2))
sketch19.addConstraint(Sketcher.Constraint("Angle", 0, Q("-150.000004 deg")))
sketch19.addConstraint(Sketcher.Constraint("DistanceX", -1, 1, 2, 2, Q("34 mm")))
sketch19.addConstraint(Sketcher.Constraint("DistanceY", 1, 2, 1, 1, Q("3.25 mm")))
sketch19.addConstraint(Sketcher.Constraint("DistanceY", 2, 2, 5, 2, Q("6.5 mm")))
sketch19.addConstraint(Sketcher.Constraint("DistanceY", -1, 1, 2, 2, Q("4.25 mm")))
pad19 = body26.newObject("PartDesign::Pad", "Pad018")
pad19.Profile = sketch19
pad19.Length = 3
body27 = doc.addObject("PartDesign::Body", "Body026")

sketch20 = body27.newObject("Sketcher::SketchObject", "Sketch019")
sketch20.AttachmentSupport = (doc.getObject("XY_Plane026"), [""])
sketch20.MapMode = "FlatFace"
sketch20.AttachmentOffset = App.Placement(V(0, 0, -1), App.Rotation())
sketch20.addGeometry(Part.Circle(V(34, 7.5, 0), V(0, 0, 1), 1.8), False)
sketch20.addConstraint(Sketcher.Constraint("Diameter", 0, Q("3.5 mm")))
sketch20.addConstraint(Sketcher.Constraint("DistanceX", -1, 1, 0, 3, Q("34 mm")))
sketch20.addConstraint(Sketcher.Constraint("DistanceY", -1, 1, 0, 3, Q("7.5 mm")))
pad20 = body27.newObject("PartDesign::Pad", "Pad019")
pad20.Profile = sketch20
pad20.Length = 20
body28 = doc.addObject("PartDesign::Body", "Body027")

sketch21 = body28.newObject("Sketcher::SketchObject", "Sketch020")
sketch21.AttachmentSupport = (doc.getObject("XY_Plane027"), [""])
sketch21.MapMode = "FlatFace"
sketch21.AttachmentOffset = App.Placement(V(0, 0, 3), App.Rotation())
add_polygon(sketch21, [(31, 29), (31, 9), (37, 9), (37, 29)])
sketch21.addConstraint(Sketcher.Constraint("Vertical", 0))
sketch21.addConstraint(Sketcher.Constraint("Horizontal", 1))
sketch21.addConstraint(Sketcher.Constraint("Vertical", 2))
sketch21.addConstraint(Sketcher.Constraint("Horizontal", 3))
sketch21.addConstraint(Sketcher.Constraint("DistanceX", 1, 1, 1, 2, Q("6 mm")))
sketch21.addConstraint(Sketcher.Constraint("DistanceY", 0, 2, 0, 1, Q("20 mm")))
sketch21.addConstraint(Sketcher.Constraint("DistanceX", -1, 1, 0, 2, Q("31 mm")))
sketch21.addConstraint(Sketcher.Constraint("DistanceY", -1, 1, 0, 2, Q("9 mm")))
pad21 = body28.newObject("PartDesign::Pad", "Pad020")
pad21.Profile = sketch21
pad21.Length = 3
doc.recompute()

boolean22 = body28.newObject("PartDesign::Boolean", "Boolean021")
boolean22.Type = "Fuse"
boolean22.addObjects([body26])
doc.recompute()

boolean23 = body28.newObject("PartDesign::Boolean", "Boolean022")
boolean23.Type = "Fuse"
boolean23.addObjects([body27])
body29 = doc.addObject("PartDesign::Body", "Body028")
doc.recompute()

body28.Placement = App.Placement(V(-21, 0, 41), App.Rotation(V(0, 0, 1), 0))
boolean24 = body29.newObject("PartDesign::Boolean", "Boolean023")
boolean24.Type = "Fuse"
boolean24.addObjects([body28])
body30 = doc.addObject("PartDesign::Body", "Body029")

sketch22 = body30.newObject("Sketcher::SketchObject", "Sketch021")
sketch22.AttachmentSupport = (doc.getObject("XY_Plane029"), [""])
sketch22.MapMode = "FlatFace"
sketch22.AttachmentOffset = App.Placement(V(0, 0, 3), App.Rotation())
add_polygon(sketch22, [(34, 10.8), (31.2, 9.1), (31.2, 5.9), (34, 4.2), (36.8, 5.9), (36.8, 9.1)])
sketch22.addConstraint(Sketcher.Constraint("Vertical", 1))
sketch22.addConstraint(Sketcher.Constraint("Vertical", 4))
sketch22.addConstraint(Sketcher.Constraint("Parallel", 0, 3))
sketch22.addConstraint(Sketcher.Constraint("Parallel", 2, 5))
sketch22.addConstraint(Sketcher.Constraint("Horizontal", 1, 2, 3, 2))
sketch22.addConstraint(Sketcher.Constraint("Horizontal", 0, 2, 4, 2))
sketch22.addConstraint(Sketcher.Constraint("Vertical", 2, 2, 5, 2))
sketch22.addConstraint(Sketcher.Constraint("Angle", 0, Q("-150.000004 deg")))
sketch22.addConstraint(Sketcher.Constraint("DistanceX", -1, 1, 2, 2, Q("34 mm")))
sketch22.addConstraint(Sketcher.Constraint("DistanceY", 1, 2, 1, 1, Q("3.25 mm")))
sketch22.addConstraint(Sketcher.Constraint("DistanceY", 2, 2, 5, 2, Q("6.5 mm")))
sketch22.addConstraint(Sketcher.Constraint("DistanceY", -1, 1, 2, 2, Q("4.25 mm")))
pad22 = body30.newObject("PartDesign::Pad", "Pad021")
pad22.Profile = sketch22
pad22.Length = 3
body31 = doc.addObject("PartDesign::Body", "Body030")

sketch23 = body31.newObject("Sketcher::SketchObject", "Sketch022")
sketch23.AttachmentSupport = (doc.getObject("XY_Plane030"), [""])
sketch23.MapMode = "FlatFace"
sketch23.AttachmentOffset = App.Placement(V(0, 0, -1), App.Rotation())
sketch23.addGeometry(Part.Circle(V(34, 7.5, 0), V(0, 0, 1), 1.8), False)
sketch23.addConstraint(Sketcher.Constraint("Diameter", 0, Q("3.5 mm")))
sketch23.addConstraint(Sketcher.Constraint("DistanceX", -1, 1, 0, 3, Q("34 mm")))
sketch23.addConstraint(Sketcher.Constraint("DistanceY", -1, 1, 0, 3, Q("7.5 mm")))
pad23 = body31.newObject("PartDesign::Pad", "Pad022")
pad23.Profile = sketch23
pad23.Length = 20
body32 = doc.addObject("PartDesign::Body", "Body031")

sketch24 = body32.newObject("Sketcher::SketchObject", "Sketch023")
sketch24.AttachmentSupport = (doc.getObject("XY_Plane031"), [""])
sketch24.MapMode = "FlatFace"
sketch24.AttachmentOffset = App.Placement(V(0, 0, 3), App.Rotation())
add_polygon(sketch24, [(31, 29), (31, 9), (37, 9), (37, 29)])
sketch24.addConstraint(Sketcher.Constraint("Vertical", 0))
sketch24.addConstraint(Sketcher.Constraint("Horizontal", 1))
sketch24.addConstraint(Sketcher.Constraint("Vertical", 2))
sketch24.addConstraint(Sketcher.Constraint("Horizontal", 3))
sketch24.addConstraint(Sketcher.Constraint("DistanceX", 1, 1, 1, 2, Q("6 mm")))
sketch24.addConstraint(Sketcher.Constraint("DistanceY", 0, 2, 0, 1, Q("20 mm")))
sketch24.addConstraint(Sketcher.Constraint("DistanceX", -1, 1, 0, 2, Q("31 mm")))
sketch24.addConstraint(Sketcher.Constraint("DistanceY", -1, 1, 0, 2, Q("9 mm")))
pad24 = body32.newObject("PartDesign::Pad", "Pad023")
pad24.Profile = sketch24
pad24.Length = 3
doc.recompute()

boolean25 = body32.newObject("PartDesign::Boolean", "Boolean024")
boolean25.Type = "Fuse"
boolean25.addObjects([body30])
doc.recompute()

boolean26 = body32.newObject("PartDesign::Boolean", "Boolean025")
boolean26.Type = "Fuse"
boolean26.addObjects([body31])
body33 = doc.addObject("PartDesign::Body", "Body032")
body33.AllowCompound = True
doc.recompute()

body32.Placement = App.Placement(V(25, 0, 41), App.Rotation(V(0, 0, 1), 0))
boolean27 = body33.newObject("PartDesign::Boolean", "Boolean026")
boolean27.Type = "Fuse"
boolean27.addObjects([body32])
doc.recompute()

boolean28 = body33.newObject("PartDesign::Boolean", "Boolean027")
boolean28.Type = "Fuse"
boolean28.addObjects([body17])
doc.recompute()

boolean29 = body33.newObject("PartDesign::Boolean", "Boolean028")
boolean29.Type = "Fuse"
boolean29.addObjects([body21])
doc.recompute()

boolean30 = body33.newObject("PartDesign::Boolean", "Boolean029")
boolean30.Type = "Fuse"
boolean30.addObjects([body25])
doc.recompute()

boolean31 = body33.newObject("PartDesign::Boolean", "Boolean030")
boolean31.Type = "Fuse"
boolean31.addObjects([body29])
body34 = doc.addObject("PartDesign::Body", "Body033")
body34.AllowCompound = True
doc.recompute()

body33.Placement = App.Placement(V(-3.5, 0, 0), App.Rotation(V(0, 0, 1), 0))
boolean32 = body34.newObject("PartDesign::Boolean", "Boolean031")
boolean32.Type = "Fuse"
boolean32.addObjects([body33])
body35 = doc.addObject("PartDesign::Body", "Body034")

sketch25 = body35.newObject("Sketcher::SketchObject", "Sketch024")
sketch25.AttachmentSupport = (doc.getObject("XY_Plane034"), [""])
sketch25.MapMode = "FlatFace"
sketch25.addGeometry(Part.Circle(V(10, 36, 0), V(0, 0, 1), 8), False)
sketch25.addConstraint(Sketcher.Constraint("Diameter", 0, Q("16.5 mm")))
sketch25.addConstraint(Sketcher.Constraint("DistanceX", -1, 1, 0, 3, Q("10 mm")))
sketch25.addConstraint(Sketcher.Constraint("DistanceY", -1, 1, 0, 3, Q("36.5 mm")))
pad25 = body35.newObject("PartDesign::Pad", "Pad024")
pad25.Profile = sketch25
pad25.Length = 20
body36 = doc.addObject("PartDesign::Body", "Body035")
body36.AllowCompound = True

sketch26 = body36.newObject("Sketcher::SketchObject", "Sketch025")
sketch26.AttachmentSupport = (doc.getObject("XY_Plane035"), [""])
sketch26.MapMode = "FlatFace"
sketch26.addGeometry(Part.Circle(V(10, 10, 0), V(0, 0, 1), 8), False)
sketch26.addConstraint(Sketcher.Constraint("Diameter", 0, Q("16.5 mm")))
sketch26.addConstraint(Sketcher.Constraint("DistanceX", -1, 1, 0, 3, Q("10 mm")))
sketch26.addConstraint(Sketcher.Constraint("DistanceY", -1, 1, 0, 3, Q("10 mm")))
pad26 = body36.newObject("PartDesign::Pad", "Pad025")
pad26.Profile = sketch26
pad26.Length = 20
doc.recompute()

boolean33 = body36.newObject("PartDesign::Boolean", "Boolean032")
boolean33.Type = "Fuse"
boolean33.addObjects([body35])
body37 = doc.addObject("PartDesign::Body", "Body036")
body37.AllowCompound = True
doc.recompute()

body36.Placement = App.Placement(V(0, 0, 0), App.Rotation(V(0, 1, 0), 270))
boolean34 = body37.newObject("PartDesign::Boolean", "Boolean033")
boolean34.Type = "Fuse"
boolean34.addObjects([body36])
body38 = doc.addObject("PartDesign::Body", "Body037")
body38.AllowCompound = True
doc.recompute()

body37.Placement = App.Placement(V(55.75, 17, 15), App.Rotation(V(0, 0, 1), 90))
boolean35 = body38.newObject("PartDesign::Boolean", "Boolean034")
boolean35.Type = "Fuse"
boolean35.addObjects([body37])
body39 = doc.addObject("PartDesign::Body", "Body038")

sketch27 = body39.newObject("Sketcher::SketchObject", "Sketch026")
sketch27.AttachmentSupport = (doc.getObject("XY_Plane038"), [""])
sketch27.MapMode = "FlatFace"
add_polygon(sketch27, [(0, 15), (0, 0), (65, 0), (65, 15)])
sketch27.addConstraint(Sketcher.Constraint("Vertical", 0))
sketch27.addConstraint(Sketcher.Constraint("Horizontal", 1))
sketch27.addConstraint(Sketcher.Constraint("Vertical", 2))
sketch27.addConstraint(Sketcher.Constraint("Horizontal", 3))
sketch27.addConstraint(Sketcher.Constraint("Coincident", 0, 2, -1, 1))
sketch27.addConstraint(Sketcher.Constraint("DistanceX", 1, 1, 1, 2, Q("65 mm")))
sketch27.addConstraint(Sketcher.Constraint("DistanceY", 0, 2, 0, 1, Q("15 mm")))
pad27 = body39.newObject("PartDesign::Pad", "Pad026")
pad27.Profile = sketch27
pad27.Length = 50
doc.recompute()

boolean36 = body39.newObject("PartDesign::Boolean", "Boolean035")
boolean36.Type = "Cut"
boolean36.addObjects([body38])
doc.recompute()

boolean37 = body39.newObject("PartDesign::Boolean", "Boolean036")
boolean37.Type = "Cut"
boolean37.addObjects([body34])
doc.recompute()

boolean38 = body39.newObject("PartDesign::Boolean", "Boolean037")
boolean38.Type = "Cut"
boolean38.addObjects([body13])
body40 = doc.addObject("PartDesign::Body", "Body039")
doc.recompute()

body39.Placement = App.Placement(V(0, 0, 0), App.Rotation(V(1, 0, 0), 90))
boolean39 = body40.newObject("PartDesign::Boolean", "Boolean038")
boolean39.Type = "Fuse"
boolean39.addObjects([body39])

doc.recompute()
